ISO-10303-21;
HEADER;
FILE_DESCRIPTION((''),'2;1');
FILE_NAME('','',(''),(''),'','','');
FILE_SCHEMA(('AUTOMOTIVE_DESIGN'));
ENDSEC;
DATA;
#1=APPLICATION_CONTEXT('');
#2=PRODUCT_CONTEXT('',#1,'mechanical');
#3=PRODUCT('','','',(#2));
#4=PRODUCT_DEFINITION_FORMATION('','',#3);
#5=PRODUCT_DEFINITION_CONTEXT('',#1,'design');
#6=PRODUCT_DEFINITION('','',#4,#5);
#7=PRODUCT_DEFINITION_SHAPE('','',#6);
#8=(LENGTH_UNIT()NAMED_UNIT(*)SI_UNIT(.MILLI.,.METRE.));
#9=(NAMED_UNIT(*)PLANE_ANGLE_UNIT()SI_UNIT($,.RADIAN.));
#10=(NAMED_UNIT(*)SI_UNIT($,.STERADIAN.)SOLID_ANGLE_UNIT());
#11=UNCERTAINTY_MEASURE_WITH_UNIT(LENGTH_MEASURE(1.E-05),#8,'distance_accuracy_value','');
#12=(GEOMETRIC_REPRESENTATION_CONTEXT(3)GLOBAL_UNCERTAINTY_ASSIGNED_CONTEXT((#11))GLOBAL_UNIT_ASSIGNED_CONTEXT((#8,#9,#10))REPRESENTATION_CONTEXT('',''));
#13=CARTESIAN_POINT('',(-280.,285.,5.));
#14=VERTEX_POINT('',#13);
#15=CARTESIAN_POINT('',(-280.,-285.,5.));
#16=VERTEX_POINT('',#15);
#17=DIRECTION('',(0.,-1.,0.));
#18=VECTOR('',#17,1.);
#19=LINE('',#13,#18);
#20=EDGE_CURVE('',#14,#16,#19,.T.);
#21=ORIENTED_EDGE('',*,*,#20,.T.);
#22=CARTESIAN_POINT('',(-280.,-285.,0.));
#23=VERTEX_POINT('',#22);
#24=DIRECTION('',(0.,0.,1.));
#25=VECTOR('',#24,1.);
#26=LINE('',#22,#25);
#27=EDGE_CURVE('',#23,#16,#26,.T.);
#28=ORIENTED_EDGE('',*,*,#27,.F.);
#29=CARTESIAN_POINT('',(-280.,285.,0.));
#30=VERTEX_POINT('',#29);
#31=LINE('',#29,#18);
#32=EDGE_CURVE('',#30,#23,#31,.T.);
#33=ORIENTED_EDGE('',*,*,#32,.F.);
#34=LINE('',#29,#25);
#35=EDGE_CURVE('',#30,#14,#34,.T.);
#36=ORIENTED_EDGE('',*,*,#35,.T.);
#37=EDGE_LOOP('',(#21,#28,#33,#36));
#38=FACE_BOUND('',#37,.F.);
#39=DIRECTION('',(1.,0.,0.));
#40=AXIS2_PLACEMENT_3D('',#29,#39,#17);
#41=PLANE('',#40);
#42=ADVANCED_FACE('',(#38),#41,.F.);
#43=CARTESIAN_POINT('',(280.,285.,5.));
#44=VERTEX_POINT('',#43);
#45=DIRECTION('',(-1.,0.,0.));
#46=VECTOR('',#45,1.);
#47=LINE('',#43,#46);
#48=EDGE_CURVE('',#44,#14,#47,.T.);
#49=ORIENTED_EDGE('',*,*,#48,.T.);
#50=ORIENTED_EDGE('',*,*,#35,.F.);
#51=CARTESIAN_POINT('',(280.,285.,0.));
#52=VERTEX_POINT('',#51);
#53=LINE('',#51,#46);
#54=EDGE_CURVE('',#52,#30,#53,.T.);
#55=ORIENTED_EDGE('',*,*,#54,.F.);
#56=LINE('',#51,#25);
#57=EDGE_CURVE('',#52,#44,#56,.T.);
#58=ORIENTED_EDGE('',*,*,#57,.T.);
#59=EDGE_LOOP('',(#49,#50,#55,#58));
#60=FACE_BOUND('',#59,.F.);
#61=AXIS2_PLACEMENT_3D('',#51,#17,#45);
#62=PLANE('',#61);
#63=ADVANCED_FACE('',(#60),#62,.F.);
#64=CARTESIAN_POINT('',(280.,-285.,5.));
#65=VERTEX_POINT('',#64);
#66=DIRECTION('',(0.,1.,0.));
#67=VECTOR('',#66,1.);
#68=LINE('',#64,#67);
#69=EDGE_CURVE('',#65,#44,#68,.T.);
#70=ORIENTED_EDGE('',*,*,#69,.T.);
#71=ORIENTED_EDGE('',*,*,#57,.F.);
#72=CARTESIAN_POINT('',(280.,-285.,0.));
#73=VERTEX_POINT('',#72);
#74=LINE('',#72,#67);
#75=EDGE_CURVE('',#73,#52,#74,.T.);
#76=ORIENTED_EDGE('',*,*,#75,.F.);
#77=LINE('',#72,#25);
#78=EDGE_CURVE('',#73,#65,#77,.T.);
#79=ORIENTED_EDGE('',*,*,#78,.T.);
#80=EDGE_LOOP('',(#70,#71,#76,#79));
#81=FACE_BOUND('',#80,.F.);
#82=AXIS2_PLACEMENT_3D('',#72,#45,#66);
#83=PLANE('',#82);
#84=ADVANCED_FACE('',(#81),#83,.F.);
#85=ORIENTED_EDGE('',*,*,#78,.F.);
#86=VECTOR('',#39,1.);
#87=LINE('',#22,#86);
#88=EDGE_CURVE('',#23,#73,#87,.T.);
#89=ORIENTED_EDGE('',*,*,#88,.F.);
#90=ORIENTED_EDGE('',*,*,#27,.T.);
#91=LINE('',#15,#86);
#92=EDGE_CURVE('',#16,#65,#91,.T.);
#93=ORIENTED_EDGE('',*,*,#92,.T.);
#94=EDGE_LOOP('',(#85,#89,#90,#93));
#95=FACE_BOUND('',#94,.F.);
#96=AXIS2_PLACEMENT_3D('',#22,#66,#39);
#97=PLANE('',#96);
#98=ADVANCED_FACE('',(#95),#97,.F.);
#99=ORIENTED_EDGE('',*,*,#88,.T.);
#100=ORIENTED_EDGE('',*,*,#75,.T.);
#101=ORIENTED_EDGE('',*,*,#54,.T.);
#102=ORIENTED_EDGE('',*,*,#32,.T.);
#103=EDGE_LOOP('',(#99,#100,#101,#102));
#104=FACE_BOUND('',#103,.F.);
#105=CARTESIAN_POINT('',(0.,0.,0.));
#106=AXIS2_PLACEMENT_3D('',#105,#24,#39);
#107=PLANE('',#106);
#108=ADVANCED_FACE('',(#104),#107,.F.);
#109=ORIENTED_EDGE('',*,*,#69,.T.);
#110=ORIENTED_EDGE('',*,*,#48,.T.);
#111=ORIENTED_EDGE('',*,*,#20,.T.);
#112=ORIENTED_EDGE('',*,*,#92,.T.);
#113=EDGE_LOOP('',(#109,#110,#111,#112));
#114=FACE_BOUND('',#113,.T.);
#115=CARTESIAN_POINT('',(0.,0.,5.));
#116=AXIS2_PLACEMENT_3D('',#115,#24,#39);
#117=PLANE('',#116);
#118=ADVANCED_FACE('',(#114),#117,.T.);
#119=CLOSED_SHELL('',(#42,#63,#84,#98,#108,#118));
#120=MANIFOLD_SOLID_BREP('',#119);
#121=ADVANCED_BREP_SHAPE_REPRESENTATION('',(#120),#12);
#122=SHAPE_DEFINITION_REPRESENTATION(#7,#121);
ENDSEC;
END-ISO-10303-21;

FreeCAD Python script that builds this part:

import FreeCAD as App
import Part
import Sketcher
from FreeCAD import Vector
Q = App.Units.Quantity


def add_polygon(sketch, points):
    """Adds a closed chain of lines whose ends are joined by coincident constraints."""
    first, n = sketch.GeometryCount, len(points)
    for a, b in zip(points, points[1:] + points[:1]):
        sketch.addGeometry(Part.LineSegment(App.Vector(*a, 0), App.Vector(*b, 0)), False)
    for i in range(n):
        sketch.addConstraint(Sketcher.Constraint("Coincident", first + i, 2, first + (i + 1) % n, 1))

doc = App.newDocument("Part")
params = doc.addObject("Spreadsheet::Sheet", "Params")
for row, (alias, value) in enumerate([
    ("sketch1_width", "560 mm"),
    ("sketch1_height", "570 mm"),
    ("pad1_length", "5 mm"),
], start=1):
    params.set(f"A{row}", alias)
    params.set(f"B{row}", "=" + value)
    params.setAlias(f"B{row}", alias)

body = doc.addObject("PartDesign::Body", "Body")

sketch1 = body.newObject("Sketcher::SketchObject", "Sketch")
sketch1.AttachmentSupport = (doc.getObject("XY_Plane"), [""])
sketch1.MapMode = "FlatFace"
add_polygon(sketch1, [(-280, 285), (-280, -285), (280, -285), (280, 285)])
sketch1.addConstraint(Sketcher.Constraint("Vertical", 0))
sketch1.addConstraint(Sketcher.Constraint("Horizontal", 1))
sketch1.addConstraint(Sketcher.Constraint("Vertical", 2))
sketch1.addConstraint(Sketcher.Constraint("Horizontal", 3))
sketch1.addConstraint(Sketcher.Constraint("Symmetric", 0, 2, 2, 2, -1, 1))
sketch1.addConstraint(Sketcher.Constraint("DistanceX", 1, 1, 1, 2, Q("560 mm")))
sketch1.addConstraint(Sketcher.Constraint("DistanceY", 0, 2, 0, 1, Q("570 mm")))
sketch1.setExpression("Constraints[9]", "Params.sketch1_width")
sketch1.setExpression("Constraints[10]", "Params.sketch1_height")
pad1 = body.newObject("PartDesign::Pad", "Pad")
pad1.Profile = sketch1
pad1.setExpression("Length", "Params.pad1_length")

doc.recompute()
